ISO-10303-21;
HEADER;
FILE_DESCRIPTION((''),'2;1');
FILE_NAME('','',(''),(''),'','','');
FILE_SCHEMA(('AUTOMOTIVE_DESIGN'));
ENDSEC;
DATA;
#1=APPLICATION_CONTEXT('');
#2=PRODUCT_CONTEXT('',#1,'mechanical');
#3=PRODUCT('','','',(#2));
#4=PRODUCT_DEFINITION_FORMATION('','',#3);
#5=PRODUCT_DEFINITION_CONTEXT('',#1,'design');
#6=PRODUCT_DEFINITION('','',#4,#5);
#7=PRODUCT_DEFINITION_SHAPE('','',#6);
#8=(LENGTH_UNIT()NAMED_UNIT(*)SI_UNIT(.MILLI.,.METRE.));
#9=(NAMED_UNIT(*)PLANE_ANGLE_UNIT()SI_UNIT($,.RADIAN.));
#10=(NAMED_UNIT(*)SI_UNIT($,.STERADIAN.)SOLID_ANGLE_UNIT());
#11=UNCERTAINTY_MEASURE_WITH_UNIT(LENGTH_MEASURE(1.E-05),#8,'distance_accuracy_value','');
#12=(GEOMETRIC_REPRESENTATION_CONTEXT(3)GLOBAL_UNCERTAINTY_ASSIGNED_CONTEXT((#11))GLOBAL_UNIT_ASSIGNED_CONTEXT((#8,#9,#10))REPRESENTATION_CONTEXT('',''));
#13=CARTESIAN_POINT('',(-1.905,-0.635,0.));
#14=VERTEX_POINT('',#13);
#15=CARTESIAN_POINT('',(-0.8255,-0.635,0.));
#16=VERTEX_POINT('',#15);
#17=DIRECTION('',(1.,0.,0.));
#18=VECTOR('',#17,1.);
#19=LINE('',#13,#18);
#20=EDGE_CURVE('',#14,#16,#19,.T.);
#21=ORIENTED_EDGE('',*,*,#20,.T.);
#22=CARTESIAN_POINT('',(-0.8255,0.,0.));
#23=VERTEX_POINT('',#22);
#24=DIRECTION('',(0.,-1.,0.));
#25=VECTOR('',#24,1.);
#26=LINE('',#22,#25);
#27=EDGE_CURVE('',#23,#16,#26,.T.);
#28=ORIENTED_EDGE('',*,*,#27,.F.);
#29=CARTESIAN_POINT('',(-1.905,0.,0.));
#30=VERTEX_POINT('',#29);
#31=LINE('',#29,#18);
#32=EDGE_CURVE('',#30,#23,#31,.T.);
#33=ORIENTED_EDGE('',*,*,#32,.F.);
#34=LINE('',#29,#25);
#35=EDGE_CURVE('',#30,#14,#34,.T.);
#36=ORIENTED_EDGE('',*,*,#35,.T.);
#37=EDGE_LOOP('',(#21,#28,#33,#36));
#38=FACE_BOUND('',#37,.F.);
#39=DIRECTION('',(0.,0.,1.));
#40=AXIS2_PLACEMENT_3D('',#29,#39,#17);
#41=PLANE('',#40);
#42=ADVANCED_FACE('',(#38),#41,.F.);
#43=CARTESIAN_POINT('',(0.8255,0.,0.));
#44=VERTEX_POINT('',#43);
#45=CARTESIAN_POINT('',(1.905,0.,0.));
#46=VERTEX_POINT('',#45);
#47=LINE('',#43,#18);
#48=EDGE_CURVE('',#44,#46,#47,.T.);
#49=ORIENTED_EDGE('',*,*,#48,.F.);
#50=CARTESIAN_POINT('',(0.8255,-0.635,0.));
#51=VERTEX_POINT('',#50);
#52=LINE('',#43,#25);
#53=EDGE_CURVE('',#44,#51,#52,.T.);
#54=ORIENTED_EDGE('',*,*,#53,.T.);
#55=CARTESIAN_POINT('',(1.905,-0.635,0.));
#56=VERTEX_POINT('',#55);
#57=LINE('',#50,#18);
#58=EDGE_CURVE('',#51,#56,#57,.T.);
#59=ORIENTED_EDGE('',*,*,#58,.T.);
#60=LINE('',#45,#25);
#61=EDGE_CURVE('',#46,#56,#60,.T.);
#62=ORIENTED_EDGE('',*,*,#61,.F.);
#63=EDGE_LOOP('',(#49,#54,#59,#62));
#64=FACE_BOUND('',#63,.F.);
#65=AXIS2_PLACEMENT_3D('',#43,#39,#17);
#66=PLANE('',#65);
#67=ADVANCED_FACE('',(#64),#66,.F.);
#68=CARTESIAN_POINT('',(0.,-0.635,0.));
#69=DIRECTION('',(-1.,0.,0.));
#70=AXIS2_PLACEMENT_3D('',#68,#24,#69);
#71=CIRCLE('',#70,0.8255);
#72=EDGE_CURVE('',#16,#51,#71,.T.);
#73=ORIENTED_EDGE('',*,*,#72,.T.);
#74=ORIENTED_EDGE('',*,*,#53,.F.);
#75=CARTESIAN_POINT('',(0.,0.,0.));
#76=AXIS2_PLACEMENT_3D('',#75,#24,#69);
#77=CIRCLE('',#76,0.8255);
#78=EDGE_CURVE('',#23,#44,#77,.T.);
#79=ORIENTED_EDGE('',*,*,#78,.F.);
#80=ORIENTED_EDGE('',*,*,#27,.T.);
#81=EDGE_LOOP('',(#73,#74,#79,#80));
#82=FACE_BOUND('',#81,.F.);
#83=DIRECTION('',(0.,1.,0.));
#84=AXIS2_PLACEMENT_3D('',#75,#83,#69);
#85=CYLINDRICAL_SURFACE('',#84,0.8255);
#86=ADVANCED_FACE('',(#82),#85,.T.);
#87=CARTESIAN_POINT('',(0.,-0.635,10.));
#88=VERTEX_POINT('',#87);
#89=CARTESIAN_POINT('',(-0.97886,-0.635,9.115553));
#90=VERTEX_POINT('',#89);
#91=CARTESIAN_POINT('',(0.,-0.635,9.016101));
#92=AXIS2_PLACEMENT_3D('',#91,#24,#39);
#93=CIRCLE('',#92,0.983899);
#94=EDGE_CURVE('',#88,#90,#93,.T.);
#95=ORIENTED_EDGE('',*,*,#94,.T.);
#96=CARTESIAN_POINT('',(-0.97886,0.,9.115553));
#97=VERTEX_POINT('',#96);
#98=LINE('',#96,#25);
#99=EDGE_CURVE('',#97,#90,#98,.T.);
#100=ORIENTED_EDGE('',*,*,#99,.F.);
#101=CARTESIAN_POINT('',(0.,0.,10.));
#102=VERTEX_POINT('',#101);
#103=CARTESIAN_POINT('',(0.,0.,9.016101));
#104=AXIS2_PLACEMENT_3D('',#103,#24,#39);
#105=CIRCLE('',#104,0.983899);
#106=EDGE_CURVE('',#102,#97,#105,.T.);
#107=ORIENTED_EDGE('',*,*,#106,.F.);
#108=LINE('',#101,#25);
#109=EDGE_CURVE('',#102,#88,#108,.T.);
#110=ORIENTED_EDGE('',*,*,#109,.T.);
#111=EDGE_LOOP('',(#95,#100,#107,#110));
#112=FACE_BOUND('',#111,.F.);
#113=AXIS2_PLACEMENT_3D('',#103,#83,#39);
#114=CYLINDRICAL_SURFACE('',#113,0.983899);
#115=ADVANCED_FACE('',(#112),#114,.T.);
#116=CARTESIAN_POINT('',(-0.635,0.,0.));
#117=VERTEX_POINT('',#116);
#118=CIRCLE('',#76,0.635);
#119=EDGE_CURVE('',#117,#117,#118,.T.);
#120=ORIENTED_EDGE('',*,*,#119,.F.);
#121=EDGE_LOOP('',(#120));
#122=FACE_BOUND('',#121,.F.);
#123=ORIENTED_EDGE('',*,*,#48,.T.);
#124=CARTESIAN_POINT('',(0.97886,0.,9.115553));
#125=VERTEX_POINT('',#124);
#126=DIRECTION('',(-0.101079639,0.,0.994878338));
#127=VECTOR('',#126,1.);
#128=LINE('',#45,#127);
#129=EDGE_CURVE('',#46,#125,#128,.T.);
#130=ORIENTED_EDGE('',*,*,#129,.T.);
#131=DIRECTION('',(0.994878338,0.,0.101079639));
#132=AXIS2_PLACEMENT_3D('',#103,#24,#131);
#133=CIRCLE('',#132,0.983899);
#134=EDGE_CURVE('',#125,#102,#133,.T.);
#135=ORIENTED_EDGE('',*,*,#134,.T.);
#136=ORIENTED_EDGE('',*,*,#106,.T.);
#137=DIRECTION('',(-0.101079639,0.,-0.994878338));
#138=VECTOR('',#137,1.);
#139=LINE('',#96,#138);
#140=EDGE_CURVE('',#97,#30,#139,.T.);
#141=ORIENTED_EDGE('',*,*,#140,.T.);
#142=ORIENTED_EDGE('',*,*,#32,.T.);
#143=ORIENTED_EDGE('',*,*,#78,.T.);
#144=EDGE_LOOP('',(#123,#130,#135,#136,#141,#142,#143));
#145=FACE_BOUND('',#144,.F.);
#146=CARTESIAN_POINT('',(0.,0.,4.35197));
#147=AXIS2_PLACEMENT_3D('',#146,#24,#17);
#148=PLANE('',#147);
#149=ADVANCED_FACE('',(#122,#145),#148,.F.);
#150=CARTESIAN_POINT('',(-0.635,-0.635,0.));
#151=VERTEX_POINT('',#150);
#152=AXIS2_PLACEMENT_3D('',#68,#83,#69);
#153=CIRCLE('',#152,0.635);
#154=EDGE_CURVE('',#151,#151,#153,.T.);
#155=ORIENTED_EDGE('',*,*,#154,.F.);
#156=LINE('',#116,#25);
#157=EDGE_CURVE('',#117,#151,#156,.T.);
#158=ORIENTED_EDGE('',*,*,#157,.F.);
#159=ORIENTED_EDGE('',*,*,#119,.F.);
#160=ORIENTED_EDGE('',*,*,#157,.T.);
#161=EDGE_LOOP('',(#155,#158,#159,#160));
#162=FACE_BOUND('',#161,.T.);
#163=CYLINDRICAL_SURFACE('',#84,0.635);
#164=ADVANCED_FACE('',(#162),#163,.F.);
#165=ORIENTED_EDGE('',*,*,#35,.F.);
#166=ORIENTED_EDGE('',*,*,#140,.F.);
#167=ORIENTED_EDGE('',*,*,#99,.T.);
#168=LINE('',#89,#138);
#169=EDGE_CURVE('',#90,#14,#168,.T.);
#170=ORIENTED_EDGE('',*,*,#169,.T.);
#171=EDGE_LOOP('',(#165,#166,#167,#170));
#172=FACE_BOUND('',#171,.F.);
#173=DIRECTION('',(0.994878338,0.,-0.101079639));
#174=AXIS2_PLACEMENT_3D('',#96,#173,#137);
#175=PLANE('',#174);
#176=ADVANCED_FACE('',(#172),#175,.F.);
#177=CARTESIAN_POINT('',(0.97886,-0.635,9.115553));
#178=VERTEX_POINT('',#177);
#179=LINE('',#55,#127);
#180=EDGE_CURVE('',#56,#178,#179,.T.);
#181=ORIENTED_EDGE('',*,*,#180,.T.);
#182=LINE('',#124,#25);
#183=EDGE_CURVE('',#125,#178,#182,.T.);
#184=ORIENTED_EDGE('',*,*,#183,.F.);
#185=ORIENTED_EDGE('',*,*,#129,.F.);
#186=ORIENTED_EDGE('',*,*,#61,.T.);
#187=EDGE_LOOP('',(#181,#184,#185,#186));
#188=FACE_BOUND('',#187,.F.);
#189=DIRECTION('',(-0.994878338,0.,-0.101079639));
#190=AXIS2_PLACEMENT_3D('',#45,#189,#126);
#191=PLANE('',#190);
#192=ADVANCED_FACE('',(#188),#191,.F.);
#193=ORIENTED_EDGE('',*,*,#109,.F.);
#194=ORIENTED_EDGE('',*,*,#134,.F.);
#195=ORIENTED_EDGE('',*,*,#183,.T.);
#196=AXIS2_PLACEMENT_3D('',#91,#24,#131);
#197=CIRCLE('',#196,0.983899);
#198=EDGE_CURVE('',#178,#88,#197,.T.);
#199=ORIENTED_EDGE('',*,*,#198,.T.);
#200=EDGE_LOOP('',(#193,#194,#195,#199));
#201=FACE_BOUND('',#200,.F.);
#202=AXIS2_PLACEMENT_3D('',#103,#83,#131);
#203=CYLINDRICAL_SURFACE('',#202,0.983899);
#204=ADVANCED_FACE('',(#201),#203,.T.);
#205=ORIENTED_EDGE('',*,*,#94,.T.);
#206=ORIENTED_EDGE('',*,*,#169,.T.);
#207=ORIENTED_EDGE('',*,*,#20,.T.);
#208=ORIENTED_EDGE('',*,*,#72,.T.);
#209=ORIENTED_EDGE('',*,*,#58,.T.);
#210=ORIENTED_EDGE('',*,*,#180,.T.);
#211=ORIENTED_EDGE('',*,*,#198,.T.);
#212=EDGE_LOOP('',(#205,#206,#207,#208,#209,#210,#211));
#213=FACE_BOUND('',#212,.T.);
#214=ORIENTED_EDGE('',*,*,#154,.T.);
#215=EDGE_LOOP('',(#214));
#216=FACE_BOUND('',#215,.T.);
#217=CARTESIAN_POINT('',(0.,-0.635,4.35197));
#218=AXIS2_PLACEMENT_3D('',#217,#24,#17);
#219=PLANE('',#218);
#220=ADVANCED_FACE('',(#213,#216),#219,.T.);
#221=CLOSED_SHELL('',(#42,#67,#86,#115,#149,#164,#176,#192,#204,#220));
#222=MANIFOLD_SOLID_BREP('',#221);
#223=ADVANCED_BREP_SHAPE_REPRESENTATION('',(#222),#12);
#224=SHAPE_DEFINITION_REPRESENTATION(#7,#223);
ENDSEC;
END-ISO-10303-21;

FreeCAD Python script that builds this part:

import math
import FreeCAD as App
import Part
import Sketcher
Q = App.Units.Quantity

doc = App.newDocument("Part")
body = doc.addObject("PartDesign::Body", "Body")

sketch1 = body.newObject("Sketcher::SketchObject", "Sketch")
sketch1.AttachmentSupport = (doc.getObject("XZ_Plane"), [""])
sketch1.MapMode = "FlatFace"
sketch1.addGeometry([
    Part.LineSegment(App.Vector(0.8, 0, 0), App.Vector(1.9, 0, 0)),
    Part.LineSegment(App.Vector(1.9, 0, 0), App.Vector(1, 9.1, 0)),
    Part.ArcOfCircle(Part.Circle(App.Vector(0, 9, 0), App.Vector(0, 0, 1), 1), math.radians(6), math.radians(90)),
    Part.ArcOfCircle(Part.Circle(App.Vector(0, 9, 0), App.Vector(0, 0, 1), 1), math.radians(90), math.radians(174)),
    Part.LineSegment(App.Vector(-1, 9.1, 0), App.Vector(-1.9, 0, 0)),
    Part.LineSegment(App.Vector(-1.9, 0, 0), App.Vector(-0.8, 0, 0)),
    Part.ArcOfCircle(Part.Circle(App.Vector(0, 0, 0), App.Vector(0, 0, 1), 0.8), math.radians(180), math.radians(360)),
], False)
sketch1.addConstraint([
    Sketcher.Constraint("Coincident", 0, 2, 1, 1),
    Sketcher.Constraint("Tangent", 1, 2, 2, 1),
    Sketcher.Constraint("Tangent", 2, 2, 3, 1),
    Sketcher.Constraint("Tangent", 3, 2, 4, 1),
    Sketcher.Constraint("Coincident", 4, 2, 5, 1),
    Sketcher.Constraint("Coincident", 5, 2, 6, 1),
    Sketcher.Constraint("Coincident", 6, 2, 0, 1),
    Sketcher.Constraint("Horizontal", 0),
    Sketcher.Constraint("Horizontal", 5),
    Sketcher.Constraint("Coincident", 6, 3, -1, 1),
    Sketcher.Constraint("Equal", 2, 3),
    Sketcher.Constraint("Symmetric", 0, 2, 4, 2, -1, 1),
    Sketcher.Constraint("Symmetric", 1, 2, 3, 2, -2),
    Sketcher.Constraint("PointOnObject", 2, 2, -2),
    Sketcher.Constraint("Radius", 6, Q("0.0325 in")),
    Sketcher.Constraint("Radius", 2, Q("0.983899 mm")),
    Sketcher.Constraint("DistanceX", 4, 2, 0, 2, Q("0.15 in")),
    Sketcher.Constraint("DistanceY", -1, 1, 2, 3, Q("9.016101 mm")),
])
pad1 = body.newObject("PartDesign::Pad", "Pad")
pad1.Profile = sketch1
pad1.Length = Q("0.025 in")

sketch2 = body.newObject("Sketcher::SketchObject", "Sketch001")
sketch2.AttachmentSupport = (doc.getObject("XZ_Plane"), [""])
sketch2.MapMode = "FlatFace"
sketch2.addGeometry(Part.Circle(App.Vector(0, 0, 0), App.Vector(0, 0, 1), 0.6), False)
sketch2.addConstraint([
    Sketcher.Constraint("Coincident", 0, 3, -1, 1),
    Sketcher.Constraint("Diameter", 0, Q("0.05 in")),
])
pocket1 = body.newObject("PartDesign::Pocket", "Pocket")
pocket1.Profile = sketch2
pocket1.Length = Q("1 in")
pocket1.Reversed = True

doc.recompute()
